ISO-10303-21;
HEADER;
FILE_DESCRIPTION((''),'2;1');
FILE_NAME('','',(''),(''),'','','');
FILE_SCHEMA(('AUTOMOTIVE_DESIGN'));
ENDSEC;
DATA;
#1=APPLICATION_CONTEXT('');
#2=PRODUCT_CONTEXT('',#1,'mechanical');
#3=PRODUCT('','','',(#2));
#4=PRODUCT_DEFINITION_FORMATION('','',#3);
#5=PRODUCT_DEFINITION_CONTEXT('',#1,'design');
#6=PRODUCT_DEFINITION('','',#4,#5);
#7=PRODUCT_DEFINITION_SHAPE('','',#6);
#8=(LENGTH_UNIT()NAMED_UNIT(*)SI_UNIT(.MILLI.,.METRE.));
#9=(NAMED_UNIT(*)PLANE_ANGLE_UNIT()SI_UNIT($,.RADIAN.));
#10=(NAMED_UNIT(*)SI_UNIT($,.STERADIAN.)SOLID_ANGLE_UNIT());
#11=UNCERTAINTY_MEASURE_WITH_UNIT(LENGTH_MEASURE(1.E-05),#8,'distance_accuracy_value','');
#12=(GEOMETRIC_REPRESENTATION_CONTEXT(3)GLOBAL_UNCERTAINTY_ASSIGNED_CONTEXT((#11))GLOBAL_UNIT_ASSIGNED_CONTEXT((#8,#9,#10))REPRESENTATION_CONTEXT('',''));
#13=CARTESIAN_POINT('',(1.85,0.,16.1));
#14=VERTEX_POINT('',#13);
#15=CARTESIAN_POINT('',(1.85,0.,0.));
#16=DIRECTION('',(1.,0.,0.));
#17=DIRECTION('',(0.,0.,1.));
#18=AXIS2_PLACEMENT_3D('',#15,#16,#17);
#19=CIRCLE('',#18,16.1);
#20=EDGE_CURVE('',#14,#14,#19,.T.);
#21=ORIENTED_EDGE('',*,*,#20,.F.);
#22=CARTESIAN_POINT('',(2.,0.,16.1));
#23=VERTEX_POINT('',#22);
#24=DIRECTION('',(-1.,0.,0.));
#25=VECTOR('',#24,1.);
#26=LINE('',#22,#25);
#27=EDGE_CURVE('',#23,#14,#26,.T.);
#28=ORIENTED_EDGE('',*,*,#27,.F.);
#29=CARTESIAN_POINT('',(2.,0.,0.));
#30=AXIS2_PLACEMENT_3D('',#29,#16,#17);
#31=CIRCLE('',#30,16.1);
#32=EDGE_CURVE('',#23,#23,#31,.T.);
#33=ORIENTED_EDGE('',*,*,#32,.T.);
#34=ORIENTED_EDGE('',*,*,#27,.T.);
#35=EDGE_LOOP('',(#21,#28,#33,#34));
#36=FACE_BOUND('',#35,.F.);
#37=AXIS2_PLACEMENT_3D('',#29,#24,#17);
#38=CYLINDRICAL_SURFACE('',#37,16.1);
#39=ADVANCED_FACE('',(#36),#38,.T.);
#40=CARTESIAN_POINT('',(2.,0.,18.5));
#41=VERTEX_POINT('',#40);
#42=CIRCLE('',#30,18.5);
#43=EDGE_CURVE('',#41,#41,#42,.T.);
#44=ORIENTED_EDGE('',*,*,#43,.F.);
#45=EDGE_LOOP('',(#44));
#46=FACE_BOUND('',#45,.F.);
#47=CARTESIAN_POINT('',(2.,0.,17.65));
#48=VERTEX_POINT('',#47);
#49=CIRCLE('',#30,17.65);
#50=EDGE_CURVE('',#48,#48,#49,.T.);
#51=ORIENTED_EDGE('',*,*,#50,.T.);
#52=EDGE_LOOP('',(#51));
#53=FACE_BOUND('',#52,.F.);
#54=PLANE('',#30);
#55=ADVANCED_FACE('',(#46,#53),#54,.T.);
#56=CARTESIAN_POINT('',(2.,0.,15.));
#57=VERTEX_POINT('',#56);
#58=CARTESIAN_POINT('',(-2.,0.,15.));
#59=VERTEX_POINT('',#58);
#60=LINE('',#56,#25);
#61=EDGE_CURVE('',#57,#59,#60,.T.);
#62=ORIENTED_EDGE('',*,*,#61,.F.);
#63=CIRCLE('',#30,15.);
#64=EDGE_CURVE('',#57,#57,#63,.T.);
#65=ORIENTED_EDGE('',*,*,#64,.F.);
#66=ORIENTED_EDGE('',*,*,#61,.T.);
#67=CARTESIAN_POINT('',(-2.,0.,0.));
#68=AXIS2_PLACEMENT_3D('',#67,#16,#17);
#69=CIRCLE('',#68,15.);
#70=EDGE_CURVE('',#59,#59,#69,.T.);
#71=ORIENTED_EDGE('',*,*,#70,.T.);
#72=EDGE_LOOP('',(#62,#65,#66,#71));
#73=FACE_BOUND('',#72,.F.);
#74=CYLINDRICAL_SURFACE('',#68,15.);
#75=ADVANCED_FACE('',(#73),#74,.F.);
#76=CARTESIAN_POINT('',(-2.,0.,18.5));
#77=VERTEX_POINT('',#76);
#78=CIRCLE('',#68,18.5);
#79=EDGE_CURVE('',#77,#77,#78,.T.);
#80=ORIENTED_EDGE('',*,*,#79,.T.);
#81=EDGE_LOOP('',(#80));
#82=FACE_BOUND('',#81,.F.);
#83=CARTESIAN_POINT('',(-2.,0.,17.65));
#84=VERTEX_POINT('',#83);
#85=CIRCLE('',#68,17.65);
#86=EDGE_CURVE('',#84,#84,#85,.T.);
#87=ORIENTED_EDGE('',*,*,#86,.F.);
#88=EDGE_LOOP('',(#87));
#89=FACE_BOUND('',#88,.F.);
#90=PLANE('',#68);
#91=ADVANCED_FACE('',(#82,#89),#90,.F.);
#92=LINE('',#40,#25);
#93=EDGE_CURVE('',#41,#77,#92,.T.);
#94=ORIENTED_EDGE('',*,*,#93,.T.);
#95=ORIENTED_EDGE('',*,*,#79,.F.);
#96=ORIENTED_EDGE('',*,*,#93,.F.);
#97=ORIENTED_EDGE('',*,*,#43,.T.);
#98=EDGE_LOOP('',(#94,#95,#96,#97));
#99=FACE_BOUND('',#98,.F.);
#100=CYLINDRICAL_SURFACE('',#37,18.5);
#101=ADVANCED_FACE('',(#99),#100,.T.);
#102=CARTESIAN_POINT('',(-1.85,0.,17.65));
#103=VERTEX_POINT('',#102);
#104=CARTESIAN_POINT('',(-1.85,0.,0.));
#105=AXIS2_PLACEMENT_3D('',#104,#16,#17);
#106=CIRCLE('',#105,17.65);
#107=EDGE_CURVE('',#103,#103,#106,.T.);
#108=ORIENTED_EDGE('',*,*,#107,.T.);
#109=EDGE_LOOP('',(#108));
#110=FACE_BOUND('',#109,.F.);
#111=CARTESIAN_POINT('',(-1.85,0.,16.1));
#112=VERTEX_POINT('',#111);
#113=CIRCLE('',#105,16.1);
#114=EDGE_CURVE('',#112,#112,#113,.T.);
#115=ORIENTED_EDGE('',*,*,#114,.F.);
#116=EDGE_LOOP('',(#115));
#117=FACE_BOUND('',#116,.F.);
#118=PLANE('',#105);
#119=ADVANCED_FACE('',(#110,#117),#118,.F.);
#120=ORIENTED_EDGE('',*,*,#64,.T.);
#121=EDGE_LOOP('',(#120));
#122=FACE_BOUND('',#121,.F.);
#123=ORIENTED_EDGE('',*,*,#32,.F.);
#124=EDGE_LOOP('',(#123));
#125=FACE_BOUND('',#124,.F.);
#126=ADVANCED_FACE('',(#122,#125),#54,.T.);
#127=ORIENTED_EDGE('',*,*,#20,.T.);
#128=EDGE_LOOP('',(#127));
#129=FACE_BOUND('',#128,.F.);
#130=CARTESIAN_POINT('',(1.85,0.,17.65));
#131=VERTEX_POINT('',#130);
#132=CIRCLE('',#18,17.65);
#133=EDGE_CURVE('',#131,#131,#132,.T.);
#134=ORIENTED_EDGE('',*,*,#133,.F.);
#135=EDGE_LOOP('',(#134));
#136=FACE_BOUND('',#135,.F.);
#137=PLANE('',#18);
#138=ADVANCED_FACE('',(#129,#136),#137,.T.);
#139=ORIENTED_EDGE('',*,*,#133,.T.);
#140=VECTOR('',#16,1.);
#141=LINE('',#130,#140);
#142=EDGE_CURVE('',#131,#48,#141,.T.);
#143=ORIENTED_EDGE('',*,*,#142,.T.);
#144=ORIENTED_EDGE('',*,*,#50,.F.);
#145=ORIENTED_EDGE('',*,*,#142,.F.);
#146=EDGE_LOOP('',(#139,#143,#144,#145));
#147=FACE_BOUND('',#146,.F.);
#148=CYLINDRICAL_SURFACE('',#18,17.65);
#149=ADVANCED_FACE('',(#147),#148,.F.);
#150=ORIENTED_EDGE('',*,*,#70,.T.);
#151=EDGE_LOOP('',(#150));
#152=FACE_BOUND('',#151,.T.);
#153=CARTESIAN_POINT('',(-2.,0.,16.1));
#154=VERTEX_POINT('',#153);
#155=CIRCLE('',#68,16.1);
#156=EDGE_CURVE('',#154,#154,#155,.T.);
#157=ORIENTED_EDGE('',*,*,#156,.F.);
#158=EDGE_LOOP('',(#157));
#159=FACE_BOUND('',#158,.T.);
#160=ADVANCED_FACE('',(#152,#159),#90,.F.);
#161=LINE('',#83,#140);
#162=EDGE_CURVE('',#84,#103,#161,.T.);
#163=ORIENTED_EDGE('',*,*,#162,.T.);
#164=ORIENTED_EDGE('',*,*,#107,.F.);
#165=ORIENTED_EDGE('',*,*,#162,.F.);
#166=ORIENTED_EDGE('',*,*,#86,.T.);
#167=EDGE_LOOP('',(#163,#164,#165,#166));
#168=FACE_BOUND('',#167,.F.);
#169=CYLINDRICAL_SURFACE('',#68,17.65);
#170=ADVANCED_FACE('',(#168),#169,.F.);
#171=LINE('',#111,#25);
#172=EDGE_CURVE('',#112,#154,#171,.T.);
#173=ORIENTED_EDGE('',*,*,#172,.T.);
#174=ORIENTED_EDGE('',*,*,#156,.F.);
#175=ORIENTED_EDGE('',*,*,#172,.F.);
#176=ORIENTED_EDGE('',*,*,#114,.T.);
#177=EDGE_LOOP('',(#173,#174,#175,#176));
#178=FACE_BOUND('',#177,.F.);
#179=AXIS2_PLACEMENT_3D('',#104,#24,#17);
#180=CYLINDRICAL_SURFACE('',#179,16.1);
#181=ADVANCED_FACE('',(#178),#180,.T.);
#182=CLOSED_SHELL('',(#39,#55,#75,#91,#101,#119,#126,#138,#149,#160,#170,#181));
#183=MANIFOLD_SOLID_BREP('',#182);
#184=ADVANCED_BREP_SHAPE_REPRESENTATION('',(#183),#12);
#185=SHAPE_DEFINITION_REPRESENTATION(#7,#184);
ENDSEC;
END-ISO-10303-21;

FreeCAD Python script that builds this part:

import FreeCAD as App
import Part
import Sketcher

V = App.Vector
Q = App.Units.Quantity

doc = App.newDocument("Part")
body = doc.addObject("PartDesign::Body", "Body")

sketch1 = doc.addObject("Sketcher::SketchObject", "Sketch")
body.addObject(sketch1)
sketch1.AttachmentSupport = (doc.XZ_Plane, [""])
sketch1.MapMode = "FlatFace"
sketch1.addGeometry([
    Part.LineSegment(V(-2, 15, 0), V(-2, 16.1, 0)),
    Part.LineSegment(V(-2, 16.1, 0), V(-1.85, 16.1, 0)),
    Part.LineSegment(V(-1.85, 16.1, 0), V(-1.85, 17.65, 0)),
    Part.LineSegment(V(-1.85, 17.65, 0), V(-2, 17.65, 0)),
    Part.LineSegment(V(-2, 17.65, 0), V(-2, 18.5, 0)),
    Part.LineSegment(V(-2, 18.5, 0), V(2, 18.5, 0)),
    Part.LineSegment(V(2, 18.5, 0), V(2, 17.65, 0)),
    Part.LineSegment(V(2, 17.65, 0), V(1.85, 17.65, 0)),
    Part.LineSegment(V(1.85, 17.65, 0), V(1.85, 16.1, 0)),
    Part.LineSegment(V(1.85, 16.1, 0), V(2, 16.1, 0)),
    Part.LineSegment(V(2, 16.1, 0), V(2, 15, 0)),
    Part.LineSegment(V(2, 15, 0), V(-2, 15, 0)),
], False)
sketch1.addConstraint([
    Sketcher.Constraint("Coincident", 0, 2, 1, 1),
    Sketcher.Constraint("Coincident", 1, 2, 2, 1),
    Sketcher.Constraint("Coincident", 2, 2, 3, 1),
    Sketcher.Constraint("Coincident", 3, 2, 4, 1),
    Sketcher.Constraint("Coincident", 4, 2, 5, 1),
    Sketcher.Constraint("Coincident", 5, 2, 6, 1),
    Sketcher.Constraint("Coincident", 6, 2, 7, 1),
    Sketcher.Constraint("Coincident", 7, 2, 8, 1),
    Sketcher.Constraint("Coincident", 8, 2, 9, 1),
    Sketcher.Constraint("Coincident", 9, 2, 10, 1),
    Sketcher.Constraint("Coincident", 10, 2, 11, 1),
    Sketcher.Constraint("Coincident", 11, 2, 0, 1),
    Sketcher.Constraint("Vertical", 0),
    Sketcher.Constraint("Horizontal", 1),
    Sketcher.Constraint("Vertical", 2),
    Sketcher.Constraint("Horizontal", 3),
    Sketcher.Constraint("Vertical", 4),
    Sketcher.Constraint("Horizontal", 5),
    Sketcher.Constraint("Vertical", 6),
    Sketcher.Constraint("Horizontal", 7),
    Sketcher.Constraint("Vertical", 8),
    Sketcher.Constraint("Horizontal", 9),
    Sketcher.Constraint("Vertical", 10),
    Sketcher.Constraint("Horizontal", 11),
    Sketcher.Constraint("Symmetric", 3, 2, 6, 2, -2),
    Sketcher.Constraint("Symmetric", 1, 2, 8, 2, -2),
    Sketcher.Constraint("Vertical", 0, 2, 3, 2),
    Sketcher.Constraint("Vertical", 6, 2, 9, 2),
    Sketcher.Constraint("DistanceX", 5, 1, 5, 2, Q("4 mm")),
    Sketcher.Constraint("DistanceY", 0, 1, 0, 2, Q("1.1 mm")),
    Sketcher.Constraint("DistanceX", 1, 1, 1, 2, Q("0.15 mm")),
    Sketcher.Constraint("DistanceY", 4, 1, 4, 2, Q("0.85 mm")),
    Sketcher.Constraint("DistanceY", -1, 1, 10, 2, Q("15 mm")),
    Sketcher.Constraint("DistanceY", 2, 1, 2, 2, Q("1.55 mm")),
])
revolution = doc.addObject("PartDesign::Revolution", "Revolution")
body.addObject(revolution)
revolution.Profile = sketch1
revolution.ReferenceAxis = (sketch1, ["H_Axis"])
revolution.Angle = 360

doc.recompute()
